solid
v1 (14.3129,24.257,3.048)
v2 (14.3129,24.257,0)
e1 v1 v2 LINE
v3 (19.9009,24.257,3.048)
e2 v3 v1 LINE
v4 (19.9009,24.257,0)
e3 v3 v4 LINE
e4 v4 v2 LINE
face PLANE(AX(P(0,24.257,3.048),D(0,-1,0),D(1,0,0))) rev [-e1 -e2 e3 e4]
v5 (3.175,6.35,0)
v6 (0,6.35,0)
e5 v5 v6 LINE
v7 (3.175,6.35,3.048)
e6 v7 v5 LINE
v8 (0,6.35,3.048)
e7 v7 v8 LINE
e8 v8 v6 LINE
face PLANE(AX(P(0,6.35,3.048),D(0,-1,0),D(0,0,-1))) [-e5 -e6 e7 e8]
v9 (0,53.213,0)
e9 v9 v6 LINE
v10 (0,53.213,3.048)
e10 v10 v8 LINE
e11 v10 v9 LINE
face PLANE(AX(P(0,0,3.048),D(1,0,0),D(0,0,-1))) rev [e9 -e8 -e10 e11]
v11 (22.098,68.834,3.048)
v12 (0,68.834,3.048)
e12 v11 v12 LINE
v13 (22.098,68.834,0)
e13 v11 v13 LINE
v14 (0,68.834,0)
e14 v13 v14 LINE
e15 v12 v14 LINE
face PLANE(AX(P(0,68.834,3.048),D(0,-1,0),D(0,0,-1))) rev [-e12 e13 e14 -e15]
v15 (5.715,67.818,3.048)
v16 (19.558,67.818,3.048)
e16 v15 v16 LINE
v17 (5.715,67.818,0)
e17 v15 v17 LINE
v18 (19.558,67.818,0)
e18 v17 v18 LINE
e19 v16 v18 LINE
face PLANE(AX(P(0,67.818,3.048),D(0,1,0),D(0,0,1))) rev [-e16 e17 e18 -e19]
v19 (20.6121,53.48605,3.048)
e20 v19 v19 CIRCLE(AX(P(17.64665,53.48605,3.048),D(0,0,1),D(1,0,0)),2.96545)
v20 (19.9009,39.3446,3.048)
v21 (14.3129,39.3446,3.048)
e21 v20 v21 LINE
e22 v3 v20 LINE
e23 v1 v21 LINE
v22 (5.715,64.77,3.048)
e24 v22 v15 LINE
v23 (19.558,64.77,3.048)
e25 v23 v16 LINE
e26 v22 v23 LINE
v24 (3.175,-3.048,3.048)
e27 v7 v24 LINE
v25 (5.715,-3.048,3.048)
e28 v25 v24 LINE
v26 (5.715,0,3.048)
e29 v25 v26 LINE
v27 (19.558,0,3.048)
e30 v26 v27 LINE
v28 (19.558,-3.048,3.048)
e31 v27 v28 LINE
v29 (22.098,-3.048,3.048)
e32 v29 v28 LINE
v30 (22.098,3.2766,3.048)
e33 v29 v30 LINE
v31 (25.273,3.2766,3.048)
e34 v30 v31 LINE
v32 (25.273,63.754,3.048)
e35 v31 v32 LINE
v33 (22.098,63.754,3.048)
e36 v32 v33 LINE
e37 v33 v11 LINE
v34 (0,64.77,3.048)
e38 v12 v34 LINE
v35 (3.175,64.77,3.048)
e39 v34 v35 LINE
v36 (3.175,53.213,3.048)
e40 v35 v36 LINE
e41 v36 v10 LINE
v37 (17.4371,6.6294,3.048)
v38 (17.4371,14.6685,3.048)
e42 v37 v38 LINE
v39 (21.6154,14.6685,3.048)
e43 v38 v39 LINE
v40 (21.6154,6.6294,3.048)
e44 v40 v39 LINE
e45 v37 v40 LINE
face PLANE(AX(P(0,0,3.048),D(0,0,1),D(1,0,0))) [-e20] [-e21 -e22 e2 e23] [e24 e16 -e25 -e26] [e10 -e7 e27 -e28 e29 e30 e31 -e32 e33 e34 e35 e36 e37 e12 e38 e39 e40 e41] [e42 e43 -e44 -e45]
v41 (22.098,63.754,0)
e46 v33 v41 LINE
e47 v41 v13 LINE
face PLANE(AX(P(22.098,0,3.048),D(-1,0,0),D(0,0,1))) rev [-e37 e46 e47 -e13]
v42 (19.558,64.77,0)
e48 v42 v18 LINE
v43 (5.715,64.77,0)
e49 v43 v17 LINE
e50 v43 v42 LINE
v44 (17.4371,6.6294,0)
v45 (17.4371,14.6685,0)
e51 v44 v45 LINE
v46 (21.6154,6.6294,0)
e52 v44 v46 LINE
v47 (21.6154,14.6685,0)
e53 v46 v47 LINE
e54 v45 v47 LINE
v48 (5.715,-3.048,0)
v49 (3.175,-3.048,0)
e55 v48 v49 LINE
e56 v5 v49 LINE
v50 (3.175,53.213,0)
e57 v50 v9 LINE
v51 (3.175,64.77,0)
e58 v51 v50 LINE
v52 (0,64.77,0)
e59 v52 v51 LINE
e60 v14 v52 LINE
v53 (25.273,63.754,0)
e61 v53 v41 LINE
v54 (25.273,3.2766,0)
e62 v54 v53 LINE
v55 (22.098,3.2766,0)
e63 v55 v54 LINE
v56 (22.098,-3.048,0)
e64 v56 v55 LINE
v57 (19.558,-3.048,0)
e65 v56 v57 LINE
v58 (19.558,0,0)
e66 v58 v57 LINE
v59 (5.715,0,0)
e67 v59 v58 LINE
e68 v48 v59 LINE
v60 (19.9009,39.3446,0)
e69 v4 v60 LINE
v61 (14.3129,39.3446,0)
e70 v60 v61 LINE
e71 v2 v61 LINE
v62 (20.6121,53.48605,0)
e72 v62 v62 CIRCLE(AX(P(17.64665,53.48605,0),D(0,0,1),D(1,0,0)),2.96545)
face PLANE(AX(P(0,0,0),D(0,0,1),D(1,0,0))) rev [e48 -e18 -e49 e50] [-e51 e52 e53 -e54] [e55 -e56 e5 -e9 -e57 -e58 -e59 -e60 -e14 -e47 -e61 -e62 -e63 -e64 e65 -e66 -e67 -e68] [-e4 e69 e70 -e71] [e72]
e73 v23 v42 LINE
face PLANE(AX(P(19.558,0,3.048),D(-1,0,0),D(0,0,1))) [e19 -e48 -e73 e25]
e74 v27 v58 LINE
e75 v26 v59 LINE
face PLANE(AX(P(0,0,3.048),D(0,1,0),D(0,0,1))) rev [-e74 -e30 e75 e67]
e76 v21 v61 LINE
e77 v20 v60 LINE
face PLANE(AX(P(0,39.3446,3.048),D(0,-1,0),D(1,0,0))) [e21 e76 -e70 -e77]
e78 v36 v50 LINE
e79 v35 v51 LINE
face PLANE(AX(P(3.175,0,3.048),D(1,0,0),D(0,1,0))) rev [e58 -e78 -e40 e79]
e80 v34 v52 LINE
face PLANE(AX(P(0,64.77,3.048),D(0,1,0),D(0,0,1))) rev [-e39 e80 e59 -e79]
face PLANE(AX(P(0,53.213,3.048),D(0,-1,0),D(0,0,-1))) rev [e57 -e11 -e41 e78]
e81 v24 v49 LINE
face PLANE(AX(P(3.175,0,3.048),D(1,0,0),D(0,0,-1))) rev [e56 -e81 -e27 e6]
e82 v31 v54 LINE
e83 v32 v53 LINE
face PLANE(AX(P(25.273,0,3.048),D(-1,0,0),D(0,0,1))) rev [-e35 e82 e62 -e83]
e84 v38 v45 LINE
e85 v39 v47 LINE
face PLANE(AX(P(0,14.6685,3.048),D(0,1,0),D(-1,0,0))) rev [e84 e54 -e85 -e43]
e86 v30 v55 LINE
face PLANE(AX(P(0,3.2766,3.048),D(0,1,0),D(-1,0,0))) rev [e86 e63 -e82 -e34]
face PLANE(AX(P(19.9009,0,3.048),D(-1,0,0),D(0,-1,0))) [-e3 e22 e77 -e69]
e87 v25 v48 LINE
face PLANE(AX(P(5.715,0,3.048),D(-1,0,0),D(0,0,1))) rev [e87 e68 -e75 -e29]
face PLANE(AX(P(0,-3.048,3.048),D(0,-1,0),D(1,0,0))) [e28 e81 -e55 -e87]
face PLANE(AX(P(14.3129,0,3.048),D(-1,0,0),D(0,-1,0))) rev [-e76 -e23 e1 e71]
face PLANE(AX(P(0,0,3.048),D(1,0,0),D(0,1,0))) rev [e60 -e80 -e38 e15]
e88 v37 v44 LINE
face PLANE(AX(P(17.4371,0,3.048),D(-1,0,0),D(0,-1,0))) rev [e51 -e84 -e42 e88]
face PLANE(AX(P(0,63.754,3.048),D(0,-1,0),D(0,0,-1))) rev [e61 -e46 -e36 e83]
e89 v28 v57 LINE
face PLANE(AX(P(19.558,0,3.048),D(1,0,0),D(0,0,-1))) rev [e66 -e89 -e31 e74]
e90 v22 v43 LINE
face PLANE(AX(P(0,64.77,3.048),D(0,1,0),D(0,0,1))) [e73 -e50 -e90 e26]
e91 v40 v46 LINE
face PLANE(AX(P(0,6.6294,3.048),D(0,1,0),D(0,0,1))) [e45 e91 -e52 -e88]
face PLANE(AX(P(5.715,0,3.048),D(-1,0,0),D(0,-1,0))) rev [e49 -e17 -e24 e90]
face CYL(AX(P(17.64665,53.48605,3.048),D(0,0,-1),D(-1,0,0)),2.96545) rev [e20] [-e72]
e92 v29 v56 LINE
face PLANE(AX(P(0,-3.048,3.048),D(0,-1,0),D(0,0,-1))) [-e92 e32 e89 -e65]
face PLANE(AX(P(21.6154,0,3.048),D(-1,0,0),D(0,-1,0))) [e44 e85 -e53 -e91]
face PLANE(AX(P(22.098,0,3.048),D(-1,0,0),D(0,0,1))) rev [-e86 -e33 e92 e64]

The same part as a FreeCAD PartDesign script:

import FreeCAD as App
import Part
import Sketcher
from FreeCAD import Vector
Q = App.Units.Quantity

doc = App.newDocument("Part")
body = doc.addObject("PartDesign::Body", "Body")

# Sketch on XY plane
sketch1 = body.newObject("Sketcher::SketchObject", "Sketch")
sketch1.AttachmentSupport = (doc.getObject("XY_Plane"), [""])
sketch1.MapMode = "FlatFace"
sketch1.addGeometry(Part.LineSegment(Vector(3.2, 64.8, 0), Vector(3.2, 53.2, 0)), False)
sketch1.addGeometry(Part.LineSegment(Vector(3.2, 53.2, 0), Vector(0, 53.2, 0)), False)
sketch1.addGeometry(Part.LineSegment(Vector(0, 53.2, 0), Vector(0, 6.3, 0)), False)
sketch1.addGeometry(Part.LineSegment(Vector(0, 6.3, 0), Vector(3.2, 6.3, 0)), False)
sketch1.addGeometry(Part.LineSegment(Vector(3.2, 6.3, 0), Vector(3.2, -3, 0)), False)
sketch1.addGeometry(Part.LineSegment(Vector(3.2, -3, 0), Vector(5.7, -3, 0)), False)
sketch1.addGeometry(Part.LineSegment(Vector(5.7, -3, 0), Vector(5.7, 0, 0)), False)
sketch1.addGeometry(Part.LineSegment(Vector(5.7, 0, 0), Vector(19.6, 0, 0)), False)
sketch1.addGeometry(Part.LineSegment(Vector(19.6, 0, 0), Vector(19.6, -3, 0)), False)
sketch1.addGeometry(Part.LineSegment(Vector(19.6, -3, 0), Vector(22.1, -3, 0)), False)
sketch1.addGeometry(Part.LineSegment(Vector(22.1, -3, 0), Vector(22.1, 3.3, 0)), False)
sketch1.addGeometry(Part.LineSegment(Vector(22.1, 3.3, 0), Vector(25.3, 3.3, 0)), False)
sketch1.addGeometry(Part.LineSegment(Vector(25.3, 3.3, 0), Vector(25.3, 63.8, 0)), False)
sketch1.addGeometry(Part.LineSegment(Vector(25.3, 63.8, 0), Vector(22.1, 63.8, 0)), False)
sketch1.addGeometry(Part.LineSegment(Vector(22.1, 63.8, 0), Vector(22.1, 68.8, 0)), False)
sketch1.addGeometry(Part.LineSegment(Vector(22.1, 68.8, 0), Vector(0, 68.8, 0)), False)
sketch1.addGeometry(Part.LineSegment(Vector(0, 68.8, 0), Vector(0, 64.8, 0)), False)
sketch1.addGeometry(Part.LineSegment(Vector(0, 64.8, 0), Vector(3.2, 64.8, 0)), False)
sketch1.addGeometry(Part.LineSegment(Vector(21.6, 6.6, 0), Vector(17.4, 6.6, 0)), False)
sketch1.addGeometry(Part.LineSegment(Vector(17.4, 6.6, 0), Vector(17.4, 14.7, 0)), False)
sketch1.addGeometry(Part.LineSegment(Vector(17.4, 14.7, 0), Vector(21.6, 14.7, 0)), False)
sketch1.addGeometry(Part.LineSegment(Vector(21.6, 14.7, 0), Vector(21.6, 6.6, 0)), False)
sketch1.addGeometry(Part.LineSegment(Vector(19.9, 24.3, 0), Vector(14.3, 24.3, 0)), False)
sketch1.addGeometry(Part.LineSegment(Vector(14.3, 24.3, 0), Vector(14.3, 39.3, 0)), False)
sketch1.addGeometry(Part.LineSegment(Vector(14.3, 39.3, 0), Vector(19.9, 39.3, 0)), False)
sketch1.addGeometry(Part.LineSegment(Vector(19.9, 39.3, 0), Vector(19.9, 24.3, 0)), False)
sketch1.addGeometry(Part.LineSegment(Vector(19.6, 64.8, 0), Vector(5.7, 64.8, 0)), False)
sketch1.addGeometry(Part.LineSegment(Vector(5.7, 64.8, 0), Vector(5.7, 67.8, 0)), False)
sketch1.addGeometry(Part.LineSegment(Vector(5.7, 67.8, 0), Vector(19.6, 67.8, 0)), False)
sketch1.addGeometry(Part.LineSegment(Vector(19.6, 67.8, 0), Vector(19.6, 64.8, 0)), False)
sketch1.addGeometry(Part.Circle(Vector(17.6, 53.5, 0), Vector(0, 0, 1), 3), False)
sketch1.addConstraint(Sketcher.Constraint("Coincident", 0, 2, 1, 1))
sketch1.addConstraint(Sketcher.Constraint("Coincident", 1, 2, 2, 1))
sketch1.addConstraint(Sketcher.Constraint("Coincident", 2, 2, 3, 1))
sketch1.addConstraint(Sketcher.Constraint("Coincident", 3, 2, 4, 1))
sketch1.addConstraint(Sketcher.Constraint("Coincident", 4, 2, 5, 1))
sketch1.addConstraint(Sketcher.Constraint("Coincident", 5, 2, 6, 1))
sketch1.addConstraint(Sketcher.Constraint("Coincident", 6, 2, 7, 1))
sketch1.addConstraint(Sketcher.Constraint("Coincident", 7, 2, 8, 1))
sketch1.addConstraint(Sketcher.Constraint("Coincident", 8, 2, 9, 1))
sketch1.addConstraint(Sketcher.Constraint("Coincident", 9, 2, 10, 1))
sketch1.addConstraint(Sketcher.Constraint("Coincident", 10, 2, 11, 1))
sketch1.addConstraint(Sketcher.Constraint("Coincident", 11, 2, 12, 1))
sketch1.addConstraint(Sketcher.Constraint("Coincident", 12, 2, 13, 1))
sketch1.addConstraint(Sketcher.Constraint("Coincident", 13, 2, 14, 1))
sketch1.addConstraint(Sketcher.Constraint("Coincident", 14, 2, 15, 1))
sketch1.addConstraint(Sketcher.Constraint("Coincident", 15, 2, 16, 1))
sketch1.addConstraint(Sketcher.Constraint("Coincident", 16, 2, 17, 1))
sketch1.addConstraint(Sketcher.Constraint("Coincident", 17, 2, 0, 1))
sketch1.addConstraint(Sketcher.Constraint("Coincident", 18, 2, 19, 1))
sketch1.addConstraint(Sketcher.Constraint("Coincident", 19, 2, 20, 1))
sketch1.addConstraint(Sketcher.Constraint("Coincident", 20, 2, 21, 1))
sketch1.addConstraint(Sketcher.Constraint("Coincident", 21, 2, 18, 1))
sketch1.addConstraint(Sketcher.Constraint("Coincident", 22, 2, 23, 1))
sketch1.addConstraint(Sketcher.Constraint("Coincident", 23, 2, 24, 1))
sketch1.addConstraint(Sketcher.Constraint("Coincident", 24, 2, 25, 1))
sketch1.addConstraint(Sketcher.Constraint("Coincident", 25, 2, 22, 1))
sketch1.addConstraint(Sketcher.Constraint("Coincident", 26, 2, 27, 1))
sketch1.addConstraint(Sketcher.Constraint("Coincident", 27, 2, 28, 1))
sketch1.addConstraint(Sketcher.Constraint("Coincident", 28, 2, 29, 1))
sketch1.addConstraint(Sketcher.Constraint("Coincident", 29, 2, 26, 1))
sketch1.addConstraint(Sketcher.Constraint("Vertical", 0))
sketch1.addConstraint(Sketcher.Constraint("Horizontal", 1))
sketch1.addConstraint(Sketcher.Constraint("Vertical", 2))
sketch1.addConstraint(Sketcher.Constraint("Horizontal", 3))
sketch1.addConstraint(Sketcher.Constraint("Vertical", 4))
sketch1.addConstraint(Sketcher.Constraint("Horizontal", 5))
sketch1.addConstraint(Sketcher.Constraint("Vertical", 6))
sketch1.addConstraint(Sketcher.Constraint("Horizontal", 7))
sketch1.addConstraint(Sketcher.Constraint("Vertical", 8))
sketch1.addConstraint(Sketcher.Constraint("Horizontal", 9))
sketch1.addConstraint(Sketcher.Constraint("Vertical", 10))
sketch1.addConstraint(Sketcher.Constraint("Horizontal", 11))
sketch1.addConstraint(Sketcher.Constraint("Vertical", 12))
sketch1.addConstraint(Sketcher.Constraint("Horizontal", 13))
sketch1.addConstraint(Sketcher.Constraint("Vertical", 14))
sketch1.addConstraint(Sketcher.Constraint("Horizontal", 15))
sketch1.addConstraint(Sketcher.Constraint("Vertical", 16))
sketch1.addConstraint(Sketcher.Constraint("Horizontal", 17))
sketch1.addConstraint(Sketcher.Constraint("Horizontal", 18))
sketch1.addConstraint(Sketcher.Constraint("Vertical", 19))
sketch1.addConstraint(Sketcher.Constraint("Horizontal", 20))
sketch1.addConstraint(Sketcher.Constraint("Vertical", 21))
sketch1.addConstraint(Sketcher.Constraint("Horizontal", 22))
sketch1.addConstraint(Sketcher.Constraint("Vertical", 23))
sketch1.addConstraint(Sketcher.Constraint("Horizontal", 24))
sketch1.addConstraint(Sketcher.Constraint("Vertical", 25))
sketch1.addConstraint(Sketcher.Constraint("Horizontal", 26))
sketch1.addConstraint(Sketcher.Constraint("Vertical", 27))
sketch1.addConstraint(Sketcher.Constraint("Horizontal", 28))
sketch1.addConstraint(Sketcher.Constraint("Vertical", 29))
sketch1.addConstraint(Sketcher.Constraint("PointOnObject", 1, 2, -2))
sketch1.addConstraint(Sketcher.Constraint("PointOnObject", 6, 2, -1))
sketch1.addConstraint(Sketcher.Constraint("PointOnObject", 15, 2, -2))
sketch1.addConstraint(Sketcher.Constraint("Horizontal", 5, 2, 8, 2))
sketch1.addConstraint(Sketcher.Constraint("Horizontal", 17, 2, 26, 2))
sketch1.addConstraint(Sketcher.Constraint("Vertical", 0, 2, 3, 2))
sketch1.addConstraint(Sketcher.Constraint("Vertical", 10, 2, 13, 2))
sketch1.addConstraint(Sketcher.Constraint("Vertical", 6, 2, 26, 2))
sketch1.addConstraint(Sketcher.Constraint("Vertical", 8, 2, 28, 2))
sketch1.addConstraint(Sketcher.Constraint("Equal", 5, 9))
sketch1.addConstraint(Sketcher.Constraint("Equal", 3, 11))
sketch1.addConstraint(Sketcher.Constraint("Equal", 8, 27))
sketch1.addConstraint(Sketcher.Constraint("DistanceX", 5, 1, 5, 2, Q("0.1 in")))
sketch1.addConstraint(Sketcher.Constraint("DistanceY", 14, 1, 14, 2, Q("0.2 in")))
sketch1.addConstraint(Sketcher.Constraint("Diameter", 30, Q("0.2335 in")))
sketch1.addConstraint(Sketcher.Constraint("DistanceX", 15, 2, 15, 1, Q("0.87 in")))
sketch1.addConstraint(Sketcher.Constraint("DistanceX", 22, 2, 22, 1, Q("0.22 in")))
sketch1.addConstraint(Sketcher.Constraint("DistanceY", 4, 2, 4, 1, Q("0.37 in")))
sketch1.addConstraint(Sketcher.Constraint("DistanceY", 6, 1, 6, 2, Q("0.12 in")))
sketch1.addConstraint(Sketcher.Constraint("DistanceY", 16, 2, 16, 1, Q("0.16 in")))
sketch1.addConstraint(Sketcher.Constraint("DistanceX", 1, 2, 1, 1, Q("0.125 in")))
sketch1.addConstraint(Sketcher.Constraint("DistanceY", 0, 2, 0, 1, Q("0.455 in")))
sketch1.addConstraint(Sketcher.Constraint("DistanceY", 2, 2, 2, 1, Q("1.845 in")))
sketch1.addConstraint(Sketcher.Constraint("DistanceY", 10, 1, 10, 2, Q("0.249 in")))
sketch1.addConstraint(Sketcher.Constraint("DistanceY", 23, 1, 23, 2, Q("0.594 in")))
sketch1.addConstraint(Sketcher.Constraint("DistanceX", 18, 2, 18, 1, Q("0.1645 in")))
sketch1.addConstraint(Sketcher.Constraint("DistanceY", 19, 1, 19, 2, Q("0.3165 in")))
sketch1.addConstraint(Sketcher.Constraint("DistanceY", -1, 1, 18, 2, Q("0.261 in")))
sketch1.addConstraint(Sketcher.Constraint("DistanceX", -1, 1, 20, 2, Q("0.851 in")))
sketch1.addConstraint(Sketcher.Constraint("DistanceY", -1, 1, 22, 2, Q("0.955 in")))
sketch1.addConstraint(Sketcher.Constraint("DistanceX", 22, 2, 19, 2, Q("0.123 in")))
sketch1.addConstraint(Sketcher.Constraint("DistanceX", -1, 1, 30, 3, 17.64665))
sketch1.addConstraint(Sketcher.Constraint("DistanceY", -1, 1, 30, 3, 53.48605))
pad1 = body.newObject("PartDesign::Pad", "Pad")
pad1.Profile = sketch1
pad1.Length = Q("0.12 in")

doc.recompute()
